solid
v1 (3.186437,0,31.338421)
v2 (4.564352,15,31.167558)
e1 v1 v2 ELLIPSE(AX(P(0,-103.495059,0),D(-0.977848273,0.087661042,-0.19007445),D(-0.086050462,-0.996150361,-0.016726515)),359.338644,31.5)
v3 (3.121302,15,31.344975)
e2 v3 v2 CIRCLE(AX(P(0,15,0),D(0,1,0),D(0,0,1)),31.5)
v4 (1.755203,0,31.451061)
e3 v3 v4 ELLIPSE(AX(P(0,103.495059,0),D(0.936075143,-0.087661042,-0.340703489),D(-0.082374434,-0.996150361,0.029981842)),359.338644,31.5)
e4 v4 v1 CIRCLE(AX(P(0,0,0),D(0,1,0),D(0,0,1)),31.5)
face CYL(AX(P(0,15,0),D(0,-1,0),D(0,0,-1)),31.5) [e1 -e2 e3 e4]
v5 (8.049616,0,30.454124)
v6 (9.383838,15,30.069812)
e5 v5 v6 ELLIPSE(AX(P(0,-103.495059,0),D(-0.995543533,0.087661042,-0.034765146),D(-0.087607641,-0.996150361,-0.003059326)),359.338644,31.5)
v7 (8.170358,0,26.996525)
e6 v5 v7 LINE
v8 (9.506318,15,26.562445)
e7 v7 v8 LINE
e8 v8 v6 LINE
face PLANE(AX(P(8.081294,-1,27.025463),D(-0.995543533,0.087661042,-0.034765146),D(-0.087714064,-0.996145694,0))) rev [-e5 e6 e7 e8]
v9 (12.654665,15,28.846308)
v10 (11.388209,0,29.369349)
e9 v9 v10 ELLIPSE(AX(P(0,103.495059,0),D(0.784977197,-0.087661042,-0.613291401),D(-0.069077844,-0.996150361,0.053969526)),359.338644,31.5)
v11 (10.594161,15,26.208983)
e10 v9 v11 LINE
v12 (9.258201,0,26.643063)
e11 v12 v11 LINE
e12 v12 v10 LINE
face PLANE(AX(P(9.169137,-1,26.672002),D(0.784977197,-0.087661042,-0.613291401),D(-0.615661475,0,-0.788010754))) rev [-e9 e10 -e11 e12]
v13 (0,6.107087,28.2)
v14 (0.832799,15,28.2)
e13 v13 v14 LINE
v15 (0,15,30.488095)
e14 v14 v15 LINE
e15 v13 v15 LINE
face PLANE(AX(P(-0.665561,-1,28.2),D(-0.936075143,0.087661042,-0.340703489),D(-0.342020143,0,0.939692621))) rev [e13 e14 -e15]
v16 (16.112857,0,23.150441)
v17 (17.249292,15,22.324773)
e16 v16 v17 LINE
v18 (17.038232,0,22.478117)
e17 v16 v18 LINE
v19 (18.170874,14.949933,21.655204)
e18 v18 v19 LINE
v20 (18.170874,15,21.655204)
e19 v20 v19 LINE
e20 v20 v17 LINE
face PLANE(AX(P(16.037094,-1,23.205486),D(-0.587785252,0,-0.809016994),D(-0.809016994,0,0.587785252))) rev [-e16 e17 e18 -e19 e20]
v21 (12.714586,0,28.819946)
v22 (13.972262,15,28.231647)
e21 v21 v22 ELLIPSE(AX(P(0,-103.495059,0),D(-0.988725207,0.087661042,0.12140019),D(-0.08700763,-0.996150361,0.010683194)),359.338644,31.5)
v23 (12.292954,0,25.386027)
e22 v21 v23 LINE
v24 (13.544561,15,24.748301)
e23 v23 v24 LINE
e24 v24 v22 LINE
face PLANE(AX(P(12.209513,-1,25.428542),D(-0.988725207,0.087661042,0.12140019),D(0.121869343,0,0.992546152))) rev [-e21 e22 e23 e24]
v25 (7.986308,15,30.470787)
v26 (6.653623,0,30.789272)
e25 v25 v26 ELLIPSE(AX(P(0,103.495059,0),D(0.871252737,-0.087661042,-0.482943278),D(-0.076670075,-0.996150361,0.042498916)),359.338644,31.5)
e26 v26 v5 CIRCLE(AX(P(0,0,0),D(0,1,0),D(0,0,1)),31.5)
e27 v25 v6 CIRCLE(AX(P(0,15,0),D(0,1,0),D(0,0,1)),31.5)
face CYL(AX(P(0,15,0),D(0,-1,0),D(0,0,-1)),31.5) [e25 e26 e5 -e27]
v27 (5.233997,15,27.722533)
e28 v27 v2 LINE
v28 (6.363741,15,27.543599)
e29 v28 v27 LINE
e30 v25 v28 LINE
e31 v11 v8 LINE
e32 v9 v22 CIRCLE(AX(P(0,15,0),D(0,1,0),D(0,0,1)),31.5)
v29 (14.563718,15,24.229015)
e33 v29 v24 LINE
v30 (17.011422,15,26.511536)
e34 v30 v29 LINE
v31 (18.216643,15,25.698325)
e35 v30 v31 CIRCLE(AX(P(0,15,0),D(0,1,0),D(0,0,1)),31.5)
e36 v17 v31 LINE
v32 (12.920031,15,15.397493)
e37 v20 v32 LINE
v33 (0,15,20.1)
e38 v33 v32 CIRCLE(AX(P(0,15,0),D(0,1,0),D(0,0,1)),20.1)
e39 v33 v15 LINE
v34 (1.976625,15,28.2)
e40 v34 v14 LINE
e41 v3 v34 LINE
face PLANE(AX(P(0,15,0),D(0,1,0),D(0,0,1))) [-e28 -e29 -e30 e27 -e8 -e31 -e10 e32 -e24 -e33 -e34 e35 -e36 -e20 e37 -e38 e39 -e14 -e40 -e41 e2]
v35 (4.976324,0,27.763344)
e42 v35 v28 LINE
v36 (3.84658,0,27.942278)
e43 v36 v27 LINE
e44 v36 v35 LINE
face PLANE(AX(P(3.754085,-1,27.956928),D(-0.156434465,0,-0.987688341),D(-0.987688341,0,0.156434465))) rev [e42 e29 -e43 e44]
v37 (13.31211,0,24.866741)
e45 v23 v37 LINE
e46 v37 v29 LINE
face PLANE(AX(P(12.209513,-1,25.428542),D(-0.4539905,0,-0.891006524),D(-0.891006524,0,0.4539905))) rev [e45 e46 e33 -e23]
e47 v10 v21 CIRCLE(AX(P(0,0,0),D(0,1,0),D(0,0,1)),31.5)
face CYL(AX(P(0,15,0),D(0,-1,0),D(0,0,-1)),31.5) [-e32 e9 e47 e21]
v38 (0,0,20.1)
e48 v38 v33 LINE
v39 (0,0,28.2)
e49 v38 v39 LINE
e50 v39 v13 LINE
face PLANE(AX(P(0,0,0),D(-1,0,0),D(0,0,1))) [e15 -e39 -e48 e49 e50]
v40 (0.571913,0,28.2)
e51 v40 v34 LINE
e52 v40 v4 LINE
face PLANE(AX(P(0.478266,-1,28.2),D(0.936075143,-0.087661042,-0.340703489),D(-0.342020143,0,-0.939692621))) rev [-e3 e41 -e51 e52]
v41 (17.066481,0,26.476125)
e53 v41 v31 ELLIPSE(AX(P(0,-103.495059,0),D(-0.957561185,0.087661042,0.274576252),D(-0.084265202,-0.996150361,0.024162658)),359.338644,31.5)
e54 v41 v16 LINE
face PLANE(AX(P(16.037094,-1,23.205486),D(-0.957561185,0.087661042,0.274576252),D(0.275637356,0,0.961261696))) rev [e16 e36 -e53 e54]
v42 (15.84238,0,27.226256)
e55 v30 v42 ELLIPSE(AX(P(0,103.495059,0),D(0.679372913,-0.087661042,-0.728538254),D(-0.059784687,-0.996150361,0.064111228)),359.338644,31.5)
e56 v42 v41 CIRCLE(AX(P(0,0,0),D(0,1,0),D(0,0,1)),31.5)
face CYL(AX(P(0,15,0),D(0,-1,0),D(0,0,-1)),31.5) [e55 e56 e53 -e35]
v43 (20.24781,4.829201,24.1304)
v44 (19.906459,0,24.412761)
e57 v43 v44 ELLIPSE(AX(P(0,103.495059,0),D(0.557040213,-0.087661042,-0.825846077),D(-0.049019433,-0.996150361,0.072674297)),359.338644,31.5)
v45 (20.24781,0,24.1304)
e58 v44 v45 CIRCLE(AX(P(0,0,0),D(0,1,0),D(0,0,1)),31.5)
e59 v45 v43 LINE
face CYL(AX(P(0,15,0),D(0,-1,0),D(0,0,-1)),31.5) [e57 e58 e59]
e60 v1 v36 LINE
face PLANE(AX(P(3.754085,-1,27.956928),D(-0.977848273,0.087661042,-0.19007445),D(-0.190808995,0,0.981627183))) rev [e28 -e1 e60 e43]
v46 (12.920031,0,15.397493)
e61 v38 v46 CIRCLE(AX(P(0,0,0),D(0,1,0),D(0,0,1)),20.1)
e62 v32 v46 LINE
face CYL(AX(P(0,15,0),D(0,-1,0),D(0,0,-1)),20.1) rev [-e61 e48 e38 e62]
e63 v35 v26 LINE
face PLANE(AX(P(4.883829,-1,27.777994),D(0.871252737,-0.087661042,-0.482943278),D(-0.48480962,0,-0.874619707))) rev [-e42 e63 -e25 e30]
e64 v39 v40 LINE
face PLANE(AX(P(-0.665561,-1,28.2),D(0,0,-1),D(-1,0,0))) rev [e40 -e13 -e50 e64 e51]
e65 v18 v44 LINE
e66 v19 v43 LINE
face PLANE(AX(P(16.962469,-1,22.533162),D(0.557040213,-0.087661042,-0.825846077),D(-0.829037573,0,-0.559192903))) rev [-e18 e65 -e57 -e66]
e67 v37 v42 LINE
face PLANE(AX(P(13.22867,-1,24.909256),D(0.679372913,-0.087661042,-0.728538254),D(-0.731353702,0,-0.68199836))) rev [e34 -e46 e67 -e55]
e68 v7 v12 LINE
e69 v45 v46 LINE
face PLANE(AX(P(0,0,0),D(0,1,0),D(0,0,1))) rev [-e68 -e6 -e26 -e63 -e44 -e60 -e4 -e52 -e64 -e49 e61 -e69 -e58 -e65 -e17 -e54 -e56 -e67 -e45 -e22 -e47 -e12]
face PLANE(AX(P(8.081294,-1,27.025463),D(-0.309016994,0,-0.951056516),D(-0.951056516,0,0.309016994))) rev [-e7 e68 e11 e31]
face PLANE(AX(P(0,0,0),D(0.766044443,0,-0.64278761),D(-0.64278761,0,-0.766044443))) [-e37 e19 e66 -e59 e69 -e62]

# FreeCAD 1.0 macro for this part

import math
import FreeCAD as App
import Part
import Sketcher

V = App.Vector
Q = App.Units.Quantity

doc = App.newDocument("Part")
body = doc.addObject("PartDesign::Body", "Body")

sketch1 = body.newObject("Sketcher::SketchObject", "Sketch")
sketch1.AttachmentSupport = (doc.getObject("XZ_Plane"), [""])
sketch1.MapMode = "FlatFace"
sketch1.addGeometry([
    Part.Circle(V(0, 0, 0), V(0, 0, 1), 31.5),
    Part.Circle(V(0, 0, 0), V(0, 0, 1), 20.1),
], False)
sketch1.addConstraint([
    Sketcher.Constraint("Coincident", 0, 3, -1, 1),
    Sketcher.Constraint("Coincident", 1, 3, -1, 1),
    Sketcher.Constraint("Diameter", 0, Q("63 mm")),
    Sketcher.Constraint("Diameter", 1, Q("40.2 mm")),
])
pad1 = body.newObject("PartDesign::Pad", "Pad")
pad1.Profile = sketch1
pad1.Length = 15
pad1.Reversed = True

sketch2 = body.newObject("Sketcher::SketchObject", "Sketch001")
sketch2.AttachmentSupport = (doc.getObject("XZ_Plane"), [""])
sketch2.MapMode = "FlatFace"
sketch2.addGeometry([
    Part.LineSegment(V(28.2, -0.571913, 0), V(28.2, 0.571913, 0)),
    Part.LineSegment(V(28.2, 0.571913, 0), V(32, 1.955, 0)),
    Part.LineSegment(V(32, 1.955, 0), V(32, -1.955, 0)),
    Part.LineSegment(V(32, -1.955, 0), V(28.2, -0.571913, 0)),
], False)
sketch2.addConstraint([
    Sketcher.Constraint("Coincident", 0, 2, 1, 1),
    Sketcher.Constraint("Coincident", 1, 2, 2, 1),
    Sketcher.Constraint("Coincident", 2, 2, 3, 1),
    Sketcher.Constraint("Coincident", 3, 2, 0, 1),
    Sketcher.Constraint("Vertical", 0),
    Sketcher.Constraint("Vertical", 2),
    Sketcher.Constraint("Equal", 1, 3),
    Sketcher.Constraint("Angle", 1, Q("20 deg")),
    Sketcher.Constraint("DistanceX", -1, 1, 1, 2, Q("32 mm")),
    Sketcher.Constraint("DistanceY", 2, 2, 2, 1, Q("3.91 mm")),
    Sketcher.Constraint("DistanceX", -1, 1, 0, 2, Q("28.2 mm")),
    Sketcher.Constraint("DistanceY", -1, 1, 1, 2, Q("1.955 mm")),
])

sketch3 = body.newObject("Sketcher::SketchObject", "Sketch002")
sketch3.Placement = App.Placement(V(0, 0, 0), App.Rotation(V(0, -0.995643711, 0.093239486), V(1.000000001, 0, 0), V(0, 0.093239486, 0.995643711), "ZXY"))
sketch3.addGeometry(Part.LineSegment(V(0, 30, 0), V(-17.269021, 30, 0)), False)
sketch3.addConstraint([
    Sketcher.Constraint("Horizontal", 0),
    Sketcher.Constraint("PointOnObject", 0, 1, -2),
    Sketcher.Constraint("DistanceY", -1, 1, 0, 1, Q("30 mm")),
    Sketcher.Constraint("DistanceX", 0, 2, 0, 1, Q("17.269021 mm")),
])
doc.recompute()

subtractivepipe = body.newObject("PartDesign::SubtractivePipe", "SubtractivePipe")
subtractivepipe.Profile = sketch2
subtractivepipe.Spine = (sketch3, ["Edge1"])
doc.recompute()

polarpattern = body.newObject("PartDesign::PolarPattern", "PolarPattern")
polarpattern.Originals = [subtractivepipe]
polarpattern.Axis = (doc.getObject("Y_Axis"), [""])
polarpattern.Angle = 360
polarpattern.Occurrences = 40
body.Tip = polarpattern

sketch4 = body.newObject("Sketcher::SketchObject", "Sketch003")
sketch4.AttachmentSupport = (doc.getObject("XZ_Plane"), [""])
sketch4.MapMode = "FlatFace"
sketch4.AttachmentOffset = App.Placement(V(0, 0, -15), App.Rotation())
sketch4.addGeometry([
    Part.LineSegment(V(-41.532, -41.532, 0), V(-41.532, 41.532, 0)),
    Part.LineSegment(V(-41.532, 41.532, 0), V(41.532, 41.532, 0)),
    Part.LineSegment(V(41.532, 41.532, 0), V(41.532, -41.532, 0)),
    Part.LineSegment(V(41.532, -41.532, 0), V(-41.532, -41.532, 0)),
    Part.LineSegment(V(0, 31.5, 0), V(0, 0, 0)),
    Part.LineSegment(V(0, 0, 0), V(20.24781, 24.1304, 0)),
    Part.ArcOfCircle(Part.Circle(V(0, 0, 0), V(0, 0, 1), 31.5), math.radians(50), math.radians(90)),
], False)
sketch4.addConstraint([
    Sketcher.Constraint("Coincident", 0, 2, 1, 1),
    Sketcher.Constraint("Coincident", 1, 2, 2, 1),
    Sketcher.Constraint("Coincident", 2, 2, 3, 1),
    Sketcher.Constraint("Coincident", 3, 2, 0, 1),
    Sketcher.Constraint("Coincident", 4, 2, 5, 1),
    Sketcher.Constraint("Coincident", 5, 2, 6, 1),
    Sketcher.Constraint("Coincident", 6, 2, 4, 1),
    Sketcher.Constraint("Vertical", 0),
    Sketcher.Constraint("Horizontal", 1),
    Sketcher.Constraint("Vertical", 2),
    Sketcher.Constraint("Horizontal", 3),
    Sketcher.Constraint("Vertical", 4),
    Sketcher.Constraint("Coincident", 6, 3, -1, 1),
    Sketcher.Constraint("Coincident", 4, 2, -1, 1),
    Sketcher.Constraint("Symmetric", 0, 2, 2, 2, -1, 1),
    Sketcher.Constraint("Equal", 3, 0),
    Sketcher.Constraint("Radius", 6, Q("31.5 mm")),
    Sketcher.Constraint("Angle", 5, Q("50 deg")),
    Sketcher.Constraint("DistanceX", 1, 1, 1, 2, Q("83.064 mm")),
])
pocket1 = body.newObject("PartDesign::Pocket", "Pocket")
pocket1.Profile = sketch4
pocket1.Type = "ThroughAll"
pocket1.Reversed = True

doc.recompute()
